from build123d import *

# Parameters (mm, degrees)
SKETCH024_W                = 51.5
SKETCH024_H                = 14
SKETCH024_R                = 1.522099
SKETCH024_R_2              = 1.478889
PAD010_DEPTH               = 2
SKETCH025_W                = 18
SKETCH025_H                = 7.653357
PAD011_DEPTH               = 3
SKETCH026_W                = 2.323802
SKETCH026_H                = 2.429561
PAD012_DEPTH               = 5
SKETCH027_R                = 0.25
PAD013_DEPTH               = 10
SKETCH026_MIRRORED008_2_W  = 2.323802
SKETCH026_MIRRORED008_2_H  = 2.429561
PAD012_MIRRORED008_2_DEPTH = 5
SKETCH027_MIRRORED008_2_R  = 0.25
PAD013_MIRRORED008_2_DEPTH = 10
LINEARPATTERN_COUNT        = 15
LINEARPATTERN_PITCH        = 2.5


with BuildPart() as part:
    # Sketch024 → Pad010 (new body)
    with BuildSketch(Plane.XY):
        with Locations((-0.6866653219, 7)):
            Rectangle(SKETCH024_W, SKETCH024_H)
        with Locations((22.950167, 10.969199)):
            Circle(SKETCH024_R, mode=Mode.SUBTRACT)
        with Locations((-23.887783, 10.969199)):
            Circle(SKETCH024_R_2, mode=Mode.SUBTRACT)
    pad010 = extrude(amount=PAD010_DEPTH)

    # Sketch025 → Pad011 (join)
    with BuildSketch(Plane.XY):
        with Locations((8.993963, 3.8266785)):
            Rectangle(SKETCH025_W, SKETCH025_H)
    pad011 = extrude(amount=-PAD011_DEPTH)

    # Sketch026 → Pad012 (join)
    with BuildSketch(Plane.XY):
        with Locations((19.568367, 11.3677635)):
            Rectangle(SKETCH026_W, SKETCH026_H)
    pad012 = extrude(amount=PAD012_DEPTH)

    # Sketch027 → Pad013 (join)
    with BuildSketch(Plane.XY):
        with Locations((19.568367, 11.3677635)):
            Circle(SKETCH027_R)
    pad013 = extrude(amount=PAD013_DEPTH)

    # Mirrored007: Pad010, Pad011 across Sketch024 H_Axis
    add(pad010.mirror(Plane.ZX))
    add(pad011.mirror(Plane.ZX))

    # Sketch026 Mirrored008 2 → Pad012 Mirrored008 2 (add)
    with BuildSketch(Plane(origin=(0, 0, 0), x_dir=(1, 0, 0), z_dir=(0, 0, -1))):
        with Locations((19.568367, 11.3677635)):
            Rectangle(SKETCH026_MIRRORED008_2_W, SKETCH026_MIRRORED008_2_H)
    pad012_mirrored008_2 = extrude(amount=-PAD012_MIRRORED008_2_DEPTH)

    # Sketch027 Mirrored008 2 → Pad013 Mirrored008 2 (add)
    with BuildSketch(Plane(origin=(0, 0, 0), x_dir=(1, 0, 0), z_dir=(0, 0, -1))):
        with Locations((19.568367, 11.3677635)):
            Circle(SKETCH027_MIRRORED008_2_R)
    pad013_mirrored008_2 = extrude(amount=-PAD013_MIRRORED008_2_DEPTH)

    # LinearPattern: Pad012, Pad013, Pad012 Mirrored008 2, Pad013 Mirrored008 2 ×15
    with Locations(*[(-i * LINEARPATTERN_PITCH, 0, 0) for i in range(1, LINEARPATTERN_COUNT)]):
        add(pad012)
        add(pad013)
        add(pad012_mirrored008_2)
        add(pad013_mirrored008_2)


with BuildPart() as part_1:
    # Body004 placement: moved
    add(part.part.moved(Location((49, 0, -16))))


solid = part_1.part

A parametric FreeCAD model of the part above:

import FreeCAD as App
import Part
import Sketcher
from FreeCAD import Vector

doc = App.newDocument("Part")
body = doc.addObject("PartDesign::Body", "Body")

# Sketch on XY plane
sketch1 = body.newObject("Sketcher::SketchObject", "Sketch")
sketch1.AttachmentSupport = (doc.getObject("XY_Plane"), [""])
sketch1.MapMode = "FlatFace"
sketch1.addGeometry(Part.LineSegment(Vector(-26.4, 14, 0), Vector(-26.4, 0, 0)), False)
sketch1.addGeometry(Part.LineSegment(Vector(-26.4, 0, 0), Vector(25.1, 0, 0)), False)
sketch1.addGeometry(Part.LineSegment(Vector(25.1, 0, 0), Vector(25.1, 14, 0)), False)
sketch1.addGeometry(Part.LineSegment(Vector(25.1, 14, 0), Vector(-26.4, 14, 0)), False)
sketch1.addGeometry(Part.Circle(Vector(-23.9, 11, 0), Vector(0, 0, 1), 1.5), False)
sketch1.addGeometry(Part.Circle(Vector(23, 11, 0), Vector(0, 0, 1), 1.5), False)
sketch1.addConstraint(Sketcher.Constraint("Coincident", 0, 2, 1, 1))
sketch1.addConstraint(Sketcher.Constraint("Coincident", 1, 2, 2, 1))
sketch1.addConstraint(Sketcher.Constraint("Coincident", 2, 2, 3, 1))
sketch1.addConstraint(Sketcher.Constraint("Coincident", 3, 2, 0, 1))
sketch1.addConstraint(Sketcher.Constraint("Vertical", 0))
sketch1.addConstraint(Sketcher.Constraint("Horizontal", 1))
sketch1.addConstraint(Sketcher.Constraint("Vertical", 2))
sketch1.addConstraint(Sketcher.Constraint("Horizontal", 3))
sketch1.addConstraint(Sketcher.Constraint("PointOnObject", 0, 2, -1))
sketch1.addConstraint(Sketcher.Constraint("Horizontal", 4, 3, 5, 3))
sketch1.addConstraint(Sketcher.Constraint("DistanceY", 0, 2, 0, 1, 14.0))
sketch1.addConstraint(Sketcher.Constraint("DistanceX", 1, 1, 1, 2, 51.5))
sketch1.addConstraint(Sketcher.Constraint("Diameter", 5, 3.044198))
sketch1.addConstraint(Sketcher.Constraint("Diameter", 4, 2.957778))
sketch1.addConstraint(Sketcher.Constraint("DistanceY", -1, 1, 4, 3, 10.969199))
sketch1.addConstraint(Sketcher.Constraint("DistanceX", 4, 3, 5, 3, 46.83795))
sketch1.addConstraint(Sketcher.Constraint("DistanceX", 4, 3, -1, 1, 23.887783))
sketch1.addConstraint(Sketcher.Constraint("DistanceX", 0, 2, -1, 1, 26.436665))
pad1 = body.newObject("PartDesign::Pad", "Pad")
pad1.Profile = sketch1
pad1.Length = 2

# Sketch on XY plane
sketch2 = body.newObject("Sketcher::SketchObject", "Sketch001")
sketch2.AttachmentSupport = (doc.getObject("XY_Plane"), [""])
sketch2.MapMode = "FlatFace"
sketch2.addGeometry(Part.LineSegment(Vector(0, 8, 0), Vector(0, 0, 0)), False)
sketch2.addGeometry(Part.LineSegment(Vector(0, 0, 0), Vector(18, 0, 0)), False)
sketch2.addGeometry(Part.LineSegment(Vector(18, 0, 0), Vector(18, 8, 0)), False)
sketch2.addGeometry(Part.LineSegment(Vector(18, 8, 0), Vector(0, 8, 0)), False)
sketch2.addConstraint(Sketcher.Constraint("Coincident", 0, 2, 1, 1))
sketch2.addConstraint(Sketcher.Constraint("Coincident", 1, 2, 2, 1))
sketch2.addConstraint(Sketcher.Constraint("Coincident", 2, 2, 3, 1))
sketch2.addConstraint(Sketcher.Constraint("Coincident", 3, 2, 0, 1))
sketch2.addConstraint(Sketcher.Constraint("Vertical", 0))
sketch2.addConstraint(Sketcher.Constraint("Horizontal", 1))
sketch2.addConstraint(Sketcher.Constraint("Vertical", 2))
sketch2.addConstraint(Sketcher.Constraint("Horizontal", 3))
sketch2.addConstraint(Sketcher.Constraint("PointOnObject", 0, 2, -1))
sketch2.addConstraint(Sketcher.Constraint("DistanceX", 1, 1, 1, 2, 18.0))
sketch2.addConstraint(Sketcher.Constraint("DistanceY", 0, 2, 0, 1, 7.653357))
sketch2.addConstraint(Sketcher.Constraint("DistanceX", 0, 2, -1, 1, 0.006037))
pad2 = body.newObject("PartDesign::Pad", "Pad001")
pad2.Profile = sketch2
pad2.Length = 3
pad2.Reversed = True

# Sketch on XY plane
sketch3 = body.newObject("Sketcher::SketchObject", "Sketch002")
sketch3.AttachmentSupport = (doc.getObject("XY_Plane"), [""])
sketch3.MapMode = "FlatFace"
sketch3.addGeometry(Part.LineSegment(Vector(18.4, 12.6, 0), Vector(18.4, 10.2, 0)), False)
sketch3.addGeometry(Part.LineSegment(Vector(18.4, 10.2, 0), Vector(20.7, 10.2, 0)), False)
sketch3.addGeometry(Part.LineSegment(Vector(20.7, 10.2, 0), Vector(20.7, 12.6, 0)), False)
sketch3.addGeometry(Part.LineSegment(Vector(20.7, 12.6, 0), Vector(18.4, 12.6, 0)), False)
sketch3.addConstraint(Sketcher.Constraint("Coincident", 0, 2, 1, 1))
sketch3.addConstraint(Sketcher.Constraint("Coincident", 1, 2, 2, 1))
sketch3.addConstraint(Sketcher.Constraint("Coincident", 2, 2, 3, 1))
sketch3.addConstraint(Sketcher.Constraint("Coincident", 3, 2, 0, 1))
sketch3.addConstraint(Sketcher.Constraint("Vertical", 0))
sketch3.addConstraint(Sketcher.Constraint("Horizontal", 1))
sketch3.addConstraint(Sketcher.Constraint("Vertical", 2))
sketch3.addConstraint(Sketcher.Constraint("Horizontal", 3))
sketch3.addConstraint(Sketcher.Constraint("DistanceX", 1, 1, 1, 2, 2.323802))
sketch3.addConstraint(Sketcher.Constraint("DistanceY", 0, 2, 0, 1, 2.429561))
sketch3.addConstraint(Sketcher.Constraint("DistanceX", -1, 1, 0, 2, 18.406466))
sketch3.addConstraint(Sketcher.Constraint("DistanceY", -1, 1, 0, 2, 10.152983))
pad3 = body.newObject("PartDesign::Pad", "Pad002")
pad3.Profile = sketch3
pad3.Length = 5

# Sketch on XY plane
sketch4 = body.newObject("Sketcher::SketchObject", "Sketch003")
sketch4.AttachmentSupport = (doc.getObject("XY_Plane"), [""])
sketch4.MapMode = "FlatFace"
sketch4.addGeometry(Part.Circle(Vector(19.57, 11.37, 0), Vector(0, 0, 1), 0.25), False)
sketch4.addConstraint(Sketcher.Constraint("Diameter", 0, 0.5))
sketch4.addConstraint(Sketcher.Constraint("DistanceX", -1, 1, 0, 3, 19.568367))
sketch4.addConstraint(Sketcher.Constraint("DistanceY", -1, 1, 0, 3, 11.367764))
pad4 = body.newObject("PartDesign::Pad", "Pad003")
pad4.Profile = sketch4
pad4.Length = 10
doc.recompute()

mirrored = body.newObject("PartDesign::Mirrored", "Mirrored")
mirrored.Originals = [pad1, pad2]
mirrored.MirrorPlane = (doc.getObject("XZ_Plane"), [""])
body.Tip = mirrored

# Sketch on XY plane
sketch5 = body.newObject("Sketcher::SketchObject", "Sketch004")
sketch5.AttachmentSupport = (doc.getObject("XY_Plane"), [""])
sketch5.MapMode = "FlatFace"
sketch5.addGeometry(Part.LineSegment(Vector(18.4, -12.6, 0), Vector(18.4, -10.2, 0)), False)
sketch5.addGeometry(Part.LineSegment(Vector(18.4, -10.2, 0), Vector(20.7, -10.2, 0)), False)
sketch5.addGeometry(Part.LineSegment(Vector(20.7, -10.2, 0), Vector(20.7, -12.6, 0)), False)
sketch5.addGeometry(Part.LineSegment(Vector(20.7, -12.6, 0), Vector(18.4, -12.6, 0)), False)
sketch5.addConstraint(Sketcher.Constraint("Coincident", 0, 2, 1, 1))
sketch5.addConstraint(Sketcher.Constraint("Coincident", 1, 2, 2, 1))
sketch5.addConstraint(Sketcher.Constraint("Coincident", 2, 2, 3, 1))
sketch5.addConstraint(Sketcher.Constraint("Coincident", 3, 2, 0, 1))
sketch5.addConstraint(Sketcher.Constraint("Vertical", 0))
sketch5.addConstraint(Sketcher.Constraint("Horizontal", 1))
sketch5.addConstraint(Sketcher.Constraint("Vertical", 2))
sketch5.addConstraint(Sketcher.Constraint("Horizontal", 3))
sketch5.addConstraint(Sketcher.Constraint("DistanceX", 1, 1, 1, 2, 2.323802))
sketch5.addConstraint(Sketcher.Constraint("DistanceY", 0, 1, 0, 2, 2.429561))
sketch5.addConstraint(Sketcher.Constraint("DistanceX", -1, 1, 0, 2, 18.406466))
sketch5.addConstraint(Sketcher.Constraint("DistanceY", 0, 2, -1, 1, 10.152983))
pad5 = body.newObject("PartDesign::Pad", "Pad004")
pad5.Profile = sketch5
pad5.Length = 5

# Sketch on XY plane
sketch6 = body.newObject("Sketcher::SketchObject", "Sketch005")
sketch6.AttachmentSupport = (doc.getObject("XY_Plane"), [""])
sketch6.MapMode = "FlatFace"
sketch6.addGeometry(Part.Circle(Vector(19.57, -11.37, 0), Vector(0, 0, 1), 0.25), False)
sketch6.addConstraint(Sketcher.Constraint("Diameter", 0, 0.5))
sketch6.addConstraint(Sketcher.Constraint("DistanceX", -1, 1, 0, 3, 19.568367))
sketch6.addConstraint(Sketcher.Constraint("DistanceY", 0, 3, -1, 1, 11.367764))
pad6 = body.newObject("PartDesign::Pad", "Pad005")
pad6.Profile = sketch6
pad6.Length = 10
doc.recompute()

linearpattern = body.newObject("PartDesign::LinearPattern", "LinearPattern")
linearpattern.Originals = [pad3, pad4, pad5, pad6]
linearpattern.Direction = (doc.getObject("X_Axis"), [""])
linearpattern.Mode = "offset"
linearpattern.Offset = 2.5
linearpattern.Occurrences = 15
linearpattern.Reversed = True
body.Tip = linearpattern
body2 = doc.addObject("PartDesign::Body", "Body001")
doc.recompute()

body.Placement = App.Placement(Vector(49, 0, -16), App.Rotation(Vector(0, 0, 1), 0))
boolean = body2.newObject("PartDesign::Boolean", "Boolean")
boolean.Type = "Fuse"
boolean.addObjects([body])

doc.recompute()
